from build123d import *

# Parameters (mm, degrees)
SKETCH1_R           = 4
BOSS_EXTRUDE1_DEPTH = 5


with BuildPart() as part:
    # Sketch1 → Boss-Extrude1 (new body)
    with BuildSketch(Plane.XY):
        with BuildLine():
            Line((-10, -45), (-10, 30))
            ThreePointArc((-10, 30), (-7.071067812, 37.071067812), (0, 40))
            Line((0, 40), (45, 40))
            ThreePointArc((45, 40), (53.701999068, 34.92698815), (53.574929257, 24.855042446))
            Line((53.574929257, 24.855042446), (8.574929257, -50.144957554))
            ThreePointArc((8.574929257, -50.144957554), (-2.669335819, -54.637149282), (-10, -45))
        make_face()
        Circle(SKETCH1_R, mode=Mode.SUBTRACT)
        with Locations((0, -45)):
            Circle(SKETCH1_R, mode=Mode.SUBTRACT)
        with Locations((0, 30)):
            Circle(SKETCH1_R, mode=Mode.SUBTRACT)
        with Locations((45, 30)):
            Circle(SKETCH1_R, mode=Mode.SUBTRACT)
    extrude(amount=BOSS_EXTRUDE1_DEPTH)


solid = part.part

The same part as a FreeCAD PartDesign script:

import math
import FreeCAD as App
import Part
import Sketcher

V = App.Vector

doc = App.newDocument("Part")
params = doc.addObject("Spreadsheet::Sheet", "Params")
for row, (alias, value) in enumerate([
    ("sketch1_diameter", "8 mm"),
    ("sketch1_radius", "10 mm"),
    ("sketch1_width", "45 mm"),
    ("sketch1_height", "75 mm"),
    ("pad1_length", "5 mm"),
], start=1):
    params.set(f"A{row}", alias)
    params.set(f"B{row}", "=" + value)
    params.setAlias(f"B{row}", alias)

body = doc.addObject("PartDesign::Body", "Body")

sketch1 = body.newObject("Sketcher::SketchObject", "Sketch")
sketch1.AttachmentSupport = (doc.getObject("XY_Plane"), [""])
sketch1.MapMode = "FlatFace"
sketch1.addGeometry(Part.LineSegment(V(-10, 30, 0), V(-10, -45, 0)), False)
sketch1.addGeometry(Part.ArcOfCircle(Part.Circle(V(0, -45, 0), V(0, 0, 1), 10), math.radians(180), math.radians(329.036243)), False)
sketch1.addGeometry(Part.LineSegment(V(8.574929, -50.144958, 0), V(53.574929, 24.855042, 0)), False)
sketch1.addGeometry(Part.ArcOfCircle(Part.Circle(V(45, 30, 0), V(0, 0, 1), 10), math.radians(-30.963757), math.radians(90)), False)
sketch1.addGeometry(Part.LineSegment(V(45, 40, 0), V(0, 40, 0)), False)
sketch1.addGeometry(Part.ArcOfCircle(Part.Circle(V(0, 30, 0), V(0, 0, 1), 10), math.radians(90), math.radians(180)), False)
sketch1.addGeometry(Part.Circle(V(0, -45, 0), V(0, 0, 1), 4), False)
sketch1.addGeometry(Part.Circle(V(45, 30, 0), V(0, 0, 1), 4), False)
sketch1.addGeometry(Part.Circle(V(0, 0, 0), V(0, 0, 1), 4), False)
sketch1.addGeometry(Part.Circle(V(0, 30, 0), V(0, 0, 1), 4), False)
sketch1.addConstraint(Sketcher.Constraint("Tangent", 0, 2, 1, 1))
sketch1.addConstraint(Sketcher.Constraint("Tangent", 1, 2, 2, 1))
sketch1.addConstraint(Sketcher.Constraint("Tangent", 2, 2, 3, 1))
sketch1.addConstraint(Sketcher.Constraint("Tangent", 3, 2, 4, 1))
sketch1.addConstraint(Sketcher.Constraint("Tangent", 4, 2, 5, 1))
sketch1.addConstraint(Sketcher.Constraint("Tangent", 5, 2, 0, 1))
sketch1.addConstraint(Sketcher.Constraint("Vertical", 0))
sketch1.addConstraint(Sketcher.Constraint("Horizontal", 4))
sketch1.addConstraint(Sketcher.Constraint("Coincident", 8, 3, -1, 1))
sketch1.addConstraint(Sketcher.Constraint("Coincident", 6, 3, 1, 3))
sketch1.addConstraint(Sketcher.Constraint("Coincident", 7, 3, 3, 3))
sketch1.addConstraint(Sketcher.Constraint("Coincident", 9, 3, 5, 3))
sketch1.addConstraint(Sketcher.Constraint("Equal", 1, 3))
sketch1.addConstraint(Sketcher.Constraint("Equal", 3, 5))
sketch1.addConstraint(Sketcher.Constraint("Equal", 6, 7))
sketch1.addConstraint(Sketcher.Constraint("Equal", 7, 8))
sketch1.addConstraint(Sketcher.Constraint("Equal", 8, 9))
sketch1.addConstraint(Sketcher.Constraint("PointOnObject", 1, 3, -2))
sketch1.addConstraint(Sketcher.Constraint("Diameter", 6, 8.0))
sketch1.addConstraint(Sketcher.Constraint("Radius", 1, 10.0))
sketch1.addConstraint(Sketcher.Constraint("DistanceX", 4, 2, 4, 1, 45.0))
sketch1.addConstraint(Sketcher.Constraint("DistanceY", 0, 2, 0, 1, 75.0))
sketch1.addConstraint(Sketcher.Constraint("DistanceY", 1, 3, -1, 1, 45.0))
sketch1.setExpression("Constraints[18]", "Params.sketch1_diameter")
sketch1.setExpression("Constraints[19]", "Params.sketch1_radius")
sketch1.setExpression("Constraints[20]", "Params.sketch1_width")
sketch1.setExpression("Constraints[21]", "Params.sketch1_height")
pad1 = body.newObject("PartDesign::Pad", "Pad")
pad1.Profile = sketch1
pad1.setExpression("Length", "Params.pad1_length")

doc.recompute()
